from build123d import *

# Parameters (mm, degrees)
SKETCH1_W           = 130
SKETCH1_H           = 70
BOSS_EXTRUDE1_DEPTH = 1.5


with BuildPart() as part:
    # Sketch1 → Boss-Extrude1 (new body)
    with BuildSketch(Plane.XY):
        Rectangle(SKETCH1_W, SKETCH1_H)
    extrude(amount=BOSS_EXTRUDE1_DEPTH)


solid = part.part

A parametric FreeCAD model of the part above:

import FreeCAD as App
import Part
import Sketcher
from FreeCAD import Vector
Q = App.Units.Quantity


def add_polygon(sketch, points):
    """Adds a closed chain of lines whose ends are joined by coincident constraints."""
    first, n = sketch.GeometryCount, len(points)
    for a, b in zip(points, points[1:] + points[:1]):
        sketch.addGeometry(Part.LineSegment(App.Vector(*a, 0), App.Vector(*b, 0)), False)
    for i in range(n):
        sketch.addConstraint(Sketcher.Constraint("Coincident", first + i, 2, first + (i + 1) % n, 1))

doc = App.newDocument("Part")
body = doc.addObject("PartDesign::Body", "Body")

sketch1 = doc.addObject("Sketcher::SketchObject", "Sketch")
body.addObject(sketch1)
sketch1.AttachmentSupport = (doc.XY_Plane, [""])
sketch1.MapMode = "FlatFace"
add_polygon(sketch1, [(-65, 35), (-65, -35), (65, -35), (65, 35)])
sketch1.addConstraint(Sketcher.Constraint("Vertical", 0))
sketch1.addConstraint(Sketcher.Constraint("Horizontal", 1))
sketch1.addConstraint(Sketcher.Constraint("Vertical", 2))
sketch1.addConstraint(Sketcher.Constraint("Horizontal", 3))
sketch1.addConstraint(Sketcher.Constraint("Symmetric", 0, 2, 2, 2, -1, 1))
sketch1.addConstraint(Sketcher.Constraint("DistanceX", 1, 1, 1, 2, Q("130 mm")))
sketch1.addConstraint(Sketcher.Constraint("DistanceY", 0, 2, 0, 1, Q("70 mm")))
pad1 = doc.addObject("PartDesign::Pad", "Pad")
body.addObject(pad1)
pad1.Profile = sketch1
pad1.Length = 1.5

doc.recompute()
